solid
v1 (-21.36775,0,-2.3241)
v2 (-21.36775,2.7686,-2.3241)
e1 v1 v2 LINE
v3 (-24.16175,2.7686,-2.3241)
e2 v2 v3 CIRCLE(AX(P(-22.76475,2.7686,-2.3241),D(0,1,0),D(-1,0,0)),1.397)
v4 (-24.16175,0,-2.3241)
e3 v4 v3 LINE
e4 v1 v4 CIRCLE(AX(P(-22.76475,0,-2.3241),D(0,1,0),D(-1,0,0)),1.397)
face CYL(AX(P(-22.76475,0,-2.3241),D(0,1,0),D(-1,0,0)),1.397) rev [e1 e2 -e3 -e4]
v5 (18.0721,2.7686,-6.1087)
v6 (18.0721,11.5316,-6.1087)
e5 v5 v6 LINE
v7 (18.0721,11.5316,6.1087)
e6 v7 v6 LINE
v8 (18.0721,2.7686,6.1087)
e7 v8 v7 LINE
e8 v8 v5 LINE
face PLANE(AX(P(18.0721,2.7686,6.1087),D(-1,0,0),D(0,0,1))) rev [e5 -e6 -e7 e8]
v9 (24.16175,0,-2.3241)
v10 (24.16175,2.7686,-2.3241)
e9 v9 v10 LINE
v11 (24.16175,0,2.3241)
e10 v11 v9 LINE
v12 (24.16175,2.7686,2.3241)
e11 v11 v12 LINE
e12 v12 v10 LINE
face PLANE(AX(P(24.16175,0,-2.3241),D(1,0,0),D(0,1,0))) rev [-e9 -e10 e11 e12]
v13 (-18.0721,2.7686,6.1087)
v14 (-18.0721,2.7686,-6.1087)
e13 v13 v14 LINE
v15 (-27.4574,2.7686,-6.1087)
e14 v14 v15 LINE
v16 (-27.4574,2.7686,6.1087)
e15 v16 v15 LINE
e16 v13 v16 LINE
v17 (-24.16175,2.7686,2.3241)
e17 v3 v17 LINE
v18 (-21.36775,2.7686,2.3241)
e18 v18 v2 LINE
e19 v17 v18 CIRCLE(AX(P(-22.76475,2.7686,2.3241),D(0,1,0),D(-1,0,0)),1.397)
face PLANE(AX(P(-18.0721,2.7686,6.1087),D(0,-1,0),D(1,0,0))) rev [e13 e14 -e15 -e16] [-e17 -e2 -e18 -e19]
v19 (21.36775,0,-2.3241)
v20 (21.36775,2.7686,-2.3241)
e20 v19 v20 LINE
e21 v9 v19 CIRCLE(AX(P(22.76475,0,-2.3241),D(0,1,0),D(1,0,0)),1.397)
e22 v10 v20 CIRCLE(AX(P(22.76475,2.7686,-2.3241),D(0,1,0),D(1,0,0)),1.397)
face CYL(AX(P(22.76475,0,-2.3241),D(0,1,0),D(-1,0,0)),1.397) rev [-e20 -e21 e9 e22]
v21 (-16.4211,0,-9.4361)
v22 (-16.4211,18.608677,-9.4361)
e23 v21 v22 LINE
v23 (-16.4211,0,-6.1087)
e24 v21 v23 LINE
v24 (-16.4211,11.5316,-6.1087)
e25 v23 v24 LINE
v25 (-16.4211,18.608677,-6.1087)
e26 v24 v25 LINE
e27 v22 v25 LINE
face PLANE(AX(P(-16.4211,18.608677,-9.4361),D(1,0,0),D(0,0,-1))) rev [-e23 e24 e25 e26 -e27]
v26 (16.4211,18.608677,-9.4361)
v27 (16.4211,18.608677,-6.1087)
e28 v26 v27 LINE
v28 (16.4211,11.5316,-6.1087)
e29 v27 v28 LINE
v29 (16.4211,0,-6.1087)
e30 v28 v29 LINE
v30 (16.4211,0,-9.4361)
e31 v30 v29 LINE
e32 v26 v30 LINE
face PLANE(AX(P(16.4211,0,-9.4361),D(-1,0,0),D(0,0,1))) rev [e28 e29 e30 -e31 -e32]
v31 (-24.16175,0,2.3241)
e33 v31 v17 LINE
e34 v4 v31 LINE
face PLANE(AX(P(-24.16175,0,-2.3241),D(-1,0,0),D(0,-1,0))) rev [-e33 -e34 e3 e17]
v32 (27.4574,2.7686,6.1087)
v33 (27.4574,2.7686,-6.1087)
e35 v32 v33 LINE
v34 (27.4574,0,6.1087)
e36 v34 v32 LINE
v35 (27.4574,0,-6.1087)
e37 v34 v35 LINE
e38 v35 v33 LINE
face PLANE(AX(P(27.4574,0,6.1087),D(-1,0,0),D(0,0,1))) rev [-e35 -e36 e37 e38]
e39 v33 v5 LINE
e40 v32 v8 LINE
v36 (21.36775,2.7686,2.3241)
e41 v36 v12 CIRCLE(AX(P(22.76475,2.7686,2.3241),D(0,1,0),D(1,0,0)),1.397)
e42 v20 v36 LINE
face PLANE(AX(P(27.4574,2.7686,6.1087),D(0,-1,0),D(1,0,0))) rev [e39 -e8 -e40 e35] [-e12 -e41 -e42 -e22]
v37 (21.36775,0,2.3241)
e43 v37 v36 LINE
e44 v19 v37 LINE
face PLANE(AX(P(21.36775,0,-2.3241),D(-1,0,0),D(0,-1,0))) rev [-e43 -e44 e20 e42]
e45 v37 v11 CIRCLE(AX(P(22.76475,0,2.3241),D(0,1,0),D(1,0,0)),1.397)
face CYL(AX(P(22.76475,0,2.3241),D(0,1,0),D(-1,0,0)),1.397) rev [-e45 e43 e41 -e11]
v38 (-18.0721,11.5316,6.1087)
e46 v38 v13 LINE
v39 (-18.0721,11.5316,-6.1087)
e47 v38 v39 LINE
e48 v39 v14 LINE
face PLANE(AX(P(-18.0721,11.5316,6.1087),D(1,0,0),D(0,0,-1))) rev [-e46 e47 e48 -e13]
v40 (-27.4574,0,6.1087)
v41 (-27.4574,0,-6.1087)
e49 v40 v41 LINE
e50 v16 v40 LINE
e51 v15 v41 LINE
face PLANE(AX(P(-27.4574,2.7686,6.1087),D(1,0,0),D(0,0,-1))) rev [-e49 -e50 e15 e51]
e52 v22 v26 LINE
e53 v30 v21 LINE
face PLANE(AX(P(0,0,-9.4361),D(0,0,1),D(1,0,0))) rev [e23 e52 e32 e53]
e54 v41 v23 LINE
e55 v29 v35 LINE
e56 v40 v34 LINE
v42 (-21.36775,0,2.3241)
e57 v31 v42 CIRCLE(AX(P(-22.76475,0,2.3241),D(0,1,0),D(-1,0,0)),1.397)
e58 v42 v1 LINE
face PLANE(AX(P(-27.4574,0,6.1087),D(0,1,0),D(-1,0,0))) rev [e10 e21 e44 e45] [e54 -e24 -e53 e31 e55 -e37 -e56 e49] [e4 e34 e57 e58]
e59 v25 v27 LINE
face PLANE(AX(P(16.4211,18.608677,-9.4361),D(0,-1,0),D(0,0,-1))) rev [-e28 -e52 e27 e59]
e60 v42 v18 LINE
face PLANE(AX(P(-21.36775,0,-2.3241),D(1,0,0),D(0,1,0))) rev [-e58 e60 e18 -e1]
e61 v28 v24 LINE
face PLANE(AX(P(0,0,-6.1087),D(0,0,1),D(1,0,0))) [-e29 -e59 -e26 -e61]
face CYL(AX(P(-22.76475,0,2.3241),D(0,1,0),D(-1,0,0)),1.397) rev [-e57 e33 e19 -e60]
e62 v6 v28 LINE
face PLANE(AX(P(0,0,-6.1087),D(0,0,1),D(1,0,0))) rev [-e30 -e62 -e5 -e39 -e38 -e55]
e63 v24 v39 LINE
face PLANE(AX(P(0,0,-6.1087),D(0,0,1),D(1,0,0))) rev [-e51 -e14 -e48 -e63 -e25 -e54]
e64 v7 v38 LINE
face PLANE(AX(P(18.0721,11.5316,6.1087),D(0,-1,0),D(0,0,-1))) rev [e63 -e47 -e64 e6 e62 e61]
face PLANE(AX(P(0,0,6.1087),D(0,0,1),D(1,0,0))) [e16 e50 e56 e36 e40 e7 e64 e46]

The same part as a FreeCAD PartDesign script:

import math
import FreeCAD as App
import Part
import Sketcher
from FreeCAD import Vector
Q = App.Units.Quantity


def add_polygon(sketch, points):
    """Adds a closed chain of lines whose ends are joined by coincident constraints."""
    first, n = sketch.GeometryCount, len(points)
    for a, b in zip(points, points[1:] + points[:1]):
        sketch.addGeometry(Part.LineSegment(App.Vector(*a, 0), App.Vector(*b, 0)), False)
    for i in range(n):
        sketch.addConstraint(Sketcher.Constraint("Coincident", first + i, 2, first + (i + 1) % n, 1))

doc = App.newDocument("Part")
body = doc.addObject("PartDesign::Body", "Body")

# Sketch on XY plane
sketch1 = body.newObject("Sketcher::SketchObject", "Sketch")
sketch1.AttachmentSupport = (doc.getObject("XY_Plane"), [""])
sketch1.MapMode = "FlatFace"
add_polygon(sketch1, [(-27.5, 0), (27.5, 0), (27.5, 2.8), (18.1, 2.8), (18.1, 11.5), (-18.1, 11.5), (-18.1, 2.8), (-27.5, 2.8)])  # lines 0-7
sketch1.addConstraint([
    Sketcher.Constraint("Horizontal", 0),
    Sketcher.Constraint("Vertical", 1),
    Sketcher.Constraint("Horizontal", 2),
    Sketcher.Constraint("Vertical", 3),
    Sketcher.Constraint("Horizontal", 4),
    Sketcher.Constraint("Vertical", 5),
    Sketcher.Constraint("Horizontal", 6),
    Sketcher.Constraint("Vertical", 7),
    Sketcher.Constraint("Symmetric", 0, 2, 7, 2, -1, 1),
    Sketcher.Constraint("Symmetric", 2, 2, 5, 2, -2),
    Sketcher.Constraint("DistanceX", 0, 1, 0, 2, Q("2.162 in")),
    Sketcher.Constraint("DistanceX", 4, 2, 4, 1, Q("1.423 in")),
    Sketcher.Constraint("DistanceY", 1, 1, 1, 2, Q("0.109 in")),
    Sketcher.Constraint("DistanceY", 3, 1, 3, 2, Q("0.345 in")),
])
pad1 = body.newObject("PartDesign::Pad", "Pad")
pad1.Profile = sketch1
pad1.Length = Q("0.481 in")
pad1.Midplane = True

# Sketch on XZ plane
sketch2 = body.newObject("Sketcher::SketchObject", "Sketch001")
sketch2.AttachmentSupport = (doc.getObject("XZ_Plane"), [""])
sketch2.MapMode = "FlatFace"
sketch2.AttachmentOffset = App.Placement(Vector(0, 0, -0.109 * 25.4), App.Rotation())
sketch2.addGeometry([
    Part.LineSegment(Vector(-21.4, 2.3, 0), Vector(-21.4, -2.3, 0)),  # 0
    Part.ArcOfCircle(Part.Circle(Vector(-22.8, -2.3, 0), Vector(0, 0, 1), 1.4), math.radians(180), math.radians(360)),  # 1
    Part.LineSegment(Vector(-24.2, -2.3, 0), Vector(-24.2, 2.3, 0)),  # 2
    Part.ArcOfCircle(Part.Circle(Vector(-22.8, 2.3, 0), Vector(0, 0, 1), 1.4), math.radians(0), math.radians(180)),  # 3
    Part.LineSegment(Vector(21.4, -2.3, 0), Vector(21.4, 2.3, 0)),  # 4
    Part.ArcOfCircle(Part.Circle(Vector(22.8, 2.3, 0), Vector(0, 0, 1), 1.4), math.radians(0), math.radians(180)),  # 5
    Part.LineSegment(Vector(24.2, 2.3, 0), Vector(24.2, -2.3, 0)),  # 6
    Part.ArcOfCircle(Part.Circle(Vector(22.8, -2.3, 0), Vector(0, 0, 1), 1.4), math.radians(180), math.radians(360)),  # 7
], False)
sketch2.addConstraint([
    Sketcher.Constraint("Tangent", 0, 2, 1, 2),
    Sketcher.Constraint("Tangent", 1, 1, 2, 1),
    Sketcher.Constraint("Tangent", 2, 2, 3, 2),
    Sketcher.Constraint("Tangent", 3, 1, 0, 1),
    Sketcher.Constraint("Tangent", 4, 2, 5, 2),
    Sketcher.Constraint("Tangent", 5, 1, 6, 1),
    Sketcher.Constraint("Tangent", 6, 2, 7, 2),
    Sketcher.Constraint("Tangent", 7, 1, 4, 1),
    Sketcher.Constraint("Vertical", 0),
    Sketcher.Constraint("Vertical", 2),
    Sketcher.Constraint("Vertical", 4),
    Sketcher.Constraint("Vertical", 6),
    Sketcher.Constraint("Equal", 3, 5),
    Sketcher.Constraint("Symmetric", 1, 3, 5, 3, -1, 1),
    Sketcher.Constraint("Horizontal", 3, 3, 5, 3),
    Sketcher.Constraint("Horizontal", 1, 3, 7, 3),
    Sketcher.Constraint("Radius", 1, Q("0.055 in")),
    Sketcher.Constraint("DistanceY", 0, 2, 0, 1, Q("0.183 in")),
    Sketcher.Constraint("DistanceX", 3, 3, 5, 3, Q("1.7925 in")),
])
pocket1 = body.newObject("PartDesign::Pocket", "Pocket")
pocket1.Profile = sketch2
pocket1.Type = "ThroughAll"
pocket1.Reversed = True

# Sketch on XY plane
sketch3 = body.newObject("Sketcher::SketchObject", "Sketch002")
sketch3.AttachmentSupport = (doc.getObject("XY_Plane"), [""])
sketch3.MapMode = "FlatFace"
sketch3.AttachmentOffset = App.Placement(Vector(0, 0, -0.2405 * 25.4), App.Rotation())
add_polygon(sketch3, [(16, 19), (16, 0), (-16, 0), (-16, 19)])  # lines 0-3
sketch3.addConstraint([
    Sketcher.Constraint("Vertical", 0),
    Sketcher.Constraint("Horizontal", 1),
    Sketcher.Constraint("Vertical", 2),
    Sketcher.Constraint("Horizontal", 3),
    Sketcher.Constraint("Symmetric", 0, 2, 1, 2, -1, 1),
    Sketcher.Constraint("DistanceX", 1, 2, 1, 1, Q("1.293 in")),
    Sketcher.Constraint("DistanceY", 0, 2, 0, 1, Q("18.608677 mm")),
])
pad2 = body.newObject("PartDesign::Pad", "Pad001")
pad2.Profile = sketch3
pad2.Length = Q("0.131 in")
pad2.Reversed = True

doc.recompute()
